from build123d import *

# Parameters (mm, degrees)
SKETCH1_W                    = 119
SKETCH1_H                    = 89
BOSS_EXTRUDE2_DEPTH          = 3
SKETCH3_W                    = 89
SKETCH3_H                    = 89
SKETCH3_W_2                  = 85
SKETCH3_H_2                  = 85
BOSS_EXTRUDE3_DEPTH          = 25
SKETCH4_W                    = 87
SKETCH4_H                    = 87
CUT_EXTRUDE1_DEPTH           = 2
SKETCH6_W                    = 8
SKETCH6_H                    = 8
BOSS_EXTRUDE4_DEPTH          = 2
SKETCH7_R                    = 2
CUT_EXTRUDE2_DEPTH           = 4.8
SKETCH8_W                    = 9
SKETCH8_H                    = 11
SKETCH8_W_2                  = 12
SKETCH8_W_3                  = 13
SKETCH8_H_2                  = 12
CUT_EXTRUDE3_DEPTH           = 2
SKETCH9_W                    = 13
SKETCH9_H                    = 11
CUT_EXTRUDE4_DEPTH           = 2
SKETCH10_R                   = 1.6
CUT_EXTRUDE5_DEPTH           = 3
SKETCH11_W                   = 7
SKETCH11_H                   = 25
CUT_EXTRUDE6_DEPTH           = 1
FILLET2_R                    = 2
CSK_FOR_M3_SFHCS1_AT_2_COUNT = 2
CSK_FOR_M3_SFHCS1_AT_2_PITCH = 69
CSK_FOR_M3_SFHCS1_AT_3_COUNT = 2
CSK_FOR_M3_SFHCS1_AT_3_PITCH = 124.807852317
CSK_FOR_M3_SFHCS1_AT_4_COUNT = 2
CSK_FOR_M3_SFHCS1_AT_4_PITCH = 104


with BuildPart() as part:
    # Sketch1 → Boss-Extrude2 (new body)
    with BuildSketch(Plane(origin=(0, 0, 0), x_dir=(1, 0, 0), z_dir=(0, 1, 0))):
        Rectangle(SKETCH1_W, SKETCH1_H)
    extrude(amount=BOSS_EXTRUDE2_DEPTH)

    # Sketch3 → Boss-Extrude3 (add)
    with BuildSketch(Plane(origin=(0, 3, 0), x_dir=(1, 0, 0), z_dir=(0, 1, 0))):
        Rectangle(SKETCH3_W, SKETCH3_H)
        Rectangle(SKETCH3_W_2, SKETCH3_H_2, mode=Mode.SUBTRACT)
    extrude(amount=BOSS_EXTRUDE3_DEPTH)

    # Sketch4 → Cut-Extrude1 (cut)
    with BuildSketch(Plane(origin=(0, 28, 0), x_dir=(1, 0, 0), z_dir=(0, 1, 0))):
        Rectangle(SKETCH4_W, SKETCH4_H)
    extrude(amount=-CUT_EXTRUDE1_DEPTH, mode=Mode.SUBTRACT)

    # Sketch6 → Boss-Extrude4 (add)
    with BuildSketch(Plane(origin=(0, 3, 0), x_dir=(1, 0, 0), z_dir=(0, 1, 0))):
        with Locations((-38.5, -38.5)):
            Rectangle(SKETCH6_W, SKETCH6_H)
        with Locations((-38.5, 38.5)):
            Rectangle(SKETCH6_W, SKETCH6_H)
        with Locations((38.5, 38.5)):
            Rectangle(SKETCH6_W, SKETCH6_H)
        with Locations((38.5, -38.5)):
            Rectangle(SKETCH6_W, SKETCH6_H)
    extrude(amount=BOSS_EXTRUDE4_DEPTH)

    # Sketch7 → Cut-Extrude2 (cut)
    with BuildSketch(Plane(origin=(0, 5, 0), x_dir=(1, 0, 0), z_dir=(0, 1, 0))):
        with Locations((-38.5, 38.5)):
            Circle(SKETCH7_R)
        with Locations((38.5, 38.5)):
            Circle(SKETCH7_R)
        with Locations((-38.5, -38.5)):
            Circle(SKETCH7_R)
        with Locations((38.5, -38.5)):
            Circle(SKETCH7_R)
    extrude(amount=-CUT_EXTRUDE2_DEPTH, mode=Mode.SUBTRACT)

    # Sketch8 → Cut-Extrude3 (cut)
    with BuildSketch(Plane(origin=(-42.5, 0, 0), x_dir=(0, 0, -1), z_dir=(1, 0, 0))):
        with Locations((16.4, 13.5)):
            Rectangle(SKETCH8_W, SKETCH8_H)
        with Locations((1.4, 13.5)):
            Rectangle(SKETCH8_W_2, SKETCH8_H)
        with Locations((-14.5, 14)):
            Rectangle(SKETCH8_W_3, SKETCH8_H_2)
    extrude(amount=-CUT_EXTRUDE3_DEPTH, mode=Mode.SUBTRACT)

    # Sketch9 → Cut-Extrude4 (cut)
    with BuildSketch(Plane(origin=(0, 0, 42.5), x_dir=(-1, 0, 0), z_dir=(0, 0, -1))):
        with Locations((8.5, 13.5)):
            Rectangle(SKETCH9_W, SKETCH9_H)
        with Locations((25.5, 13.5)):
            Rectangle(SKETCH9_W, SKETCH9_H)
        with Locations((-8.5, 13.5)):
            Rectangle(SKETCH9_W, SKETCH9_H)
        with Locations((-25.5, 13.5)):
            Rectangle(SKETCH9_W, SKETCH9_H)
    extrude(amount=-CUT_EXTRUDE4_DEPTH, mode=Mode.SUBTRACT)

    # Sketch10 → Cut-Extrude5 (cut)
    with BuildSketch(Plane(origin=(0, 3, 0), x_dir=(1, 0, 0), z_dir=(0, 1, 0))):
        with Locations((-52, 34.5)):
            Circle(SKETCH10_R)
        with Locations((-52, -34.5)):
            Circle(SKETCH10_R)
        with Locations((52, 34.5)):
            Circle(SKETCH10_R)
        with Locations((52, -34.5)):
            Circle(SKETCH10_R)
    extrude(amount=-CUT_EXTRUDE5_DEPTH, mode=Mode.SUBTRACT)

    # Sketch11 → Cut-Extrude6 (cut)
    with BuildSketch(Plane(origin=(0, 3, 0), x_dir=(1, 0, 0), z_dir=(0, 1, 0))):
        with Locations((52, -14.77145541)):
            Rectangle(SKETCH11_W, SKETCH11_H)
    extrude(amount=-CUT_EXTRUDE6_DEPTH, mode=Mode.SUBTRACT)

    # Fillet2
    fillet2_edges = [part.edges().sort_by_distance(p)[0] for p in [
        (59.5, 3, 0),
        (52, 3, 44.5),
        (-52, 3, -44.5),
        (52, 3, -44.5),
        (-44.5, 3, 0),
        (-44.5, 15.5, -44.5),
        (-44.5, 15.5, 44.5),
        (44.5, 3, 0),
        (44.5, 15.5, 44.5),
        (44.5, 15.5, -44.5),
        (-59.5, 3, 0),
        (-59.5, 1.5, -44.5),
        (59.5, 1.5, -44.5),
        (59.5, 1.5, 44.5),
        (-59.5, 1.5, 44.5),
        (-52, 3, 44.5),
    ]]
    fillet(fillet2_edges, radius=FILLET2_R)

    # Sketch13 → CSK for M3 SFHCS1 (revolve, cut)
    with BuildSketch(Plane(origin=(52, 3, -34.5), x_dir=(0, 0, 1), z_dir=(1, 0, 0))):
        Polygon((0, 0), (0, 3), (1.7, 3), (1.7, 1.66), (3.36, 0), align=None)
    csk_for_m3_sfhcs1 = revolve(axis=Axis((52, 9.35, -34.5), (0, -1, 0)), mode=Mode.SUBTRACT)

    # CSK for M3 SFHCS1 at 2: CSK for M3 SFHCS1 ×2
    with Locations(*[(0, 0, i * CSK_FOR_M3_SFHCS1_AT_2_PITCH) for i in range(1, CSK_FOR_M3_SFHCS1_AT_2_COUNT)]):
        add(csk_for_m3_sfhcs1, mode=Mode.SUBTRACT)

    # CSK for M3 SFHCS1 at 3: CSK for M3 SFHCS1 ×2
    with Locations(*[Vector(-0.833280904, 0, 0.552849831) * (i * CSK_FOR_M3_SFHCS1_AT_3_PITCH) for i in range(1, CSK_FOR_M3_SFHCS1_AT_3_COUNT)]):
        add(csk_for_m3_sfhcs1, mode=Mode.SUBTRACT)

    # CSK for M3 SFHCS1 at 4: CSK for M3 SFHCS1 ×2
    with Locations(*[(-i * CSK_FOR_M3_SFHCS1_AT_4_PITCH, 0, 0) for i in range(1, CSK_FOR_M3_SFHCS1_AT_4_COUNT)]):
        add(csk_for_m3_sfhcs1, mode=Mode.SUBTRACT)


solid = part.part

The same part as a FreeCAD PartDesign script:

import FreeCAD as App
import Part
import Sketcher

V = App.Vector
Q = App.Units.Quantity


def edges_at(feature, points):
    """Names of the edges that pass closest to the given points."""
    edges = feature.Shape.Edges
    near = lambda p: min(range(len(edges)), key=lambda i: edges[i].distToShape(Part.Vertex(*p))[0])
    return sorted({f"Edge{near(p) + 1}" for p in points})


def add_polygon(sketch, points):
    """Adds a closed chain of lines whose ends are joined by coincident constraints."""
    first, n = sketch.GeometryCount, len(points)
    for a, b in zip(points, points[1:] + points[:1]):
        sketch.addGeometry(Part.LineSegment(App.Vector(*a, 0), App.Vector(*b, 0)), False)
    for i in range(n):
        sketch.addConstraint(Sketcher.Constraint("Coincident", first + i, 2, first + (i + 1) % n, 1))

doc = App.newDocument("Part")
body = doc.addObject("PartDesign::Body", "Body")

# Sketch on XZ plane
sketch1 = body.newObject("Sketcher::SketchObject", "Sketch")
sketch1.AttachmentSupport = (doc.getObject("XZ_Plane"), [""])
sketch1.MapMode = "FlatFace"
add_polygon(sketch1, [(-60, -44), (-60, 44), (60, 44), (60, -44)])  # lines 0-3
sketch1.addConstraint([
    Sketcher.Constraint("Vertical", 0),
    Sketcher.Constraint("Horizontal", 1),
    Sketcher.Constraint("Vertical", 2),
    Sketcher.Constraint("Horizontal", 3),
    Sketcher.Constraint("Symmetric", 0, 2, 2, 2, -1, 1),
    Sketcher.Constraint("DistanceX", 1, 1, 1, 2, 119.0),
    Sketcher.Constraint("DistanceY", 0, 1, 0, 2, 89.0),
])
pad1 = body.newObject("PartDesign::Pad", "Pad")
pad1.Profile = sketch1
pad1.Length = 3
pad1.Reversed = True

# Sketch on XZ plane
sketch2 = body.newObject("Sketcher::SketchObject", "Sketch001")
sketch2.AttachmentSupport = (doc.getObject("XZ_Plane"), [""])
sketch2.MapMode = "FlatFace"
sketch2.AttachmentOffset = App.Placement(V(0, 0, -3), App.Rotation())
add_polygon(sketch2, [(-44, -44), (-44, 44), (44, 44), (44, -44)])  # lines 0-3
add_polygon(sketch2, [(42, 42), (-42, 42), (-42, -42), (42, -42)])  # lines 4-7
sketch2.addConstraint([
    Sketcher.Constraint("Vertical", 0),
    Sketcher.Constraint("Horizontal", 1),
    Sketcher.Constraint("Vertical", 2),
    Sketcher.Constraint("Horizontal", 3),
    Sketcher.Constraint("Horizontal", 4),
    Sketcher.Constraint("Vertical", 5),
    Sketcher.Constraint("Horizontal", 6),
    Sketcher.Constraint("Vertical", 7),
    Sketcher.Constraint("Symmetric", 0, 2, 2, 2, -1, 1),
    Sketcher.Constraint("Symmetric", 4, 2, 6, 2, -1, 1),
    Sketcher.Constraint("Equal", 3, 0),
    Sketcher.Constraint("Equal", 6, 5),
    Sketcher.Constraint("DistanceX", 1, 1, 1, 2, 89.0),
    Sketcher.Constraint("DistanceX", 4, 2, 4, 1, 85.0),
])
pad2 = body.newObject("PartDesign::Pad", "Pad001")
pad2.Profile = sketch2
pad2.Length = 25
pad2.Reversed = True

# Sketch on XZ plane
sketch3 = body.newObject("Sketcher::SketchObject", "Sketch002")
sketch3.AttachmentSupport = (doc.getObject("XZ_Plane"), [""])
sketch3.MapMode = "FlatFace"
sketch3.AttachmentOffset = App.Placement(V(0, 0, -28), App.Rotation())
add_polygon(sketch3, [(-44, -44), (-44, 44), (44, 44), (44, -44)])  # lines 0-3
sketch3.addConstraint([
    Sketcher.Constraint("Vertical", 0),
    Sketcher.Constraint("Horizontal", 1),
    Sketcher.Constraint("Vertical", 2),
    Sketcher.Constraint("Horizontal", 3),
    Sketcher.Constraint("Symmetric", 0, 2, 2, 2, -1, 1),
    Sketcher.Constraint("Equal", 3, 0),
    Sketcher.Constraint("DistanceX", 1, 1, 1, 2, 87.0),
])
pocket1 = body.newObject("PartDesign::Pocket", "Pocket")
pocket1.Profile = sketch3
pocket1.Length = 2
pocket1.Reversed = True

# Sketch on XZ plane
sketch4 = body.newObject("Sketcher::SketchObject", "Sketch003")
sketch4.AttachmentSupport = (doc.getObject("XZ_Plane"), [""])
sketch4.MapMode = "FlatFace"
sketch4.AttachmentOffset = App.Placement(V(0, 0, -3), App.Rotation())
add_polygon(sketch4, [(-42, 34), (-42, 42), (-34, 42), (-34, 34)])  # lines 0-3
add_polygon(sketch4, [(-42, -42), (-42, -34), (-34, -34), (-34, -42)])  # lines 4-7
add_polygon(sketch4, [(34, -42), (34, -34), (42, -34), (42, -42)])  # lines 8-11
add_polygon(sketch4, [(34, 34), (34, 42), (42, 42), (42, 34)])  # lines 12-15
sketch4.addConstraint([
    Sketcher.Constraint("Vertical", 0),
    Sketcher.Constraint("Horizontal", 1),
    Sketcher.Constraint("Vertical", 2),
    Sketcher.Constraint("Horizontal", 3),
    Sketcher.Constraint("Vertical", 4),
    Sketcher.Constraint("Horizontal", 5),
    Sketcher.Constraint("Vertical", 6),
    Sketcher.Constraint("Horizontal", 7),
    Sketcher.Constraint("Vertical", 8),
    Sketcher.Constraint("Horizontal", 9),
    Sketcher.Constraint("Vertical", 10),
    Sketcher.Constraint("Horizontal", 11),
    Sketcher.Constraint("Vertical", 12),
    Sketcher.Constraint("Horizontal", 13),
    Sketcher.Constraint("Vertical", 14),
    Sketcher.Constraint("Horizontal", 15),
    Sketcher.Constraint("Symmetric", 2, 2, 8, 2, -1, 1),
    Sketcher.Constraint("Symmetric", 0, 2, 10, 2, -1, 1),
    Sketcher.Constraint("Symmetric", 6, 2, 12, 2, -1, 1),
    Sketcher.Constraint("Symmetric", 4, 2, 14, 2, -1, 1),
    Sketcher.Constraint("Symmetric", 5, 2, 8, 2, -2),
    Sketcher.Constraint("Symmetric", 7, 2, 10, 2, -2),
    Sketcher.Constraint("Equal", 15, 0),
    Sketcher.Constraint("DistanceX", 1, 1, 1, 2, 8.0),
    Sketcher.Constraint("DistanceY", 4, 2, 3, 2, 69.0),
    Sketcher.Constraint("DistanceX", 5, 2, 8, 2, 69.0),
])
pad3 = body.newObject("PartDesign::Pad", "Pad002")
pad3.Profile = sketch4
pad3.Length = 2
pad3.Reversed = True

# Sketch on XZ plane
sketch5 = body.newObject("Sketcher::SketchObject", "Sketch004")
sketch5.AttachmentSupport = (doc.getObject("XZ_Plane"), [""])
sketch5.MapMode = "FlatFace"
sketch5.AttachmentOffset = App.Placement(V(0, 0, -5), App.Rotation())
sketch5.addGeometry([
    Part.Circle(V(-38.5, -38.5, 0), V(0, 0, 1), 2),
    Part.Circle(V(38.5, -38.5, 0), V(0, 0, 1), 2),
    Part.Circle(V(-38.5, 38.5, 0), V(0, 0, 1), 2),
    Part.Circle(V(38.5, 38.5, 0), V(0, 0, 1), 2),
], False)
sketch5.addConstraint([
    Sketcher.Constraint("Equal", 0, 1),
    Sketcher.Constraint("Equal", 1, 2),
    Sketcher.Constraint("Equal", 2, 3),
    Sketcher.Constraint("Symmetric", 1, 3, 2, 3, -1, 1),
    Sketcher.Constraint("Symmetric", 0, 3, 3, 3, -1, 1),
    Sketcher.Constraint("Symmetric", 0, 3, 1, 3, -2),
    Sketcher.Constraint("Diameter", 0, 4.0),
    Sketcher.Constraint("DistanceX", 0, 3, 1, 3, 77.0),
    Sketcher.Constraint("DistanceY", 0, 3, 2, 3, 77.0),
])
pocket2 = body.newObject("PartDesign::Pocket", "Pocket001")
pocket2.Profile = sketch5
pocket2.Length = 4.8
pocket2.Reversed = True

# Sketch on YZ plane
sketch6 = body.newObject("Sketcher::SketchObject", "Sketch005")
sketch6.AttachmentSupport = (doc.getObject("YZ_Plane"), [""])
sketch6.MapMode = "FlatFace"
sketch6.AttachmentOffset = App.Placement(V(0, 0, -42.5), App.Rotation())
add_polygon(sketch6, [(19, -12), (8, -12), (8, -21), (19, -21)])  # lines 0-3
add_polygon(sketch6, [(19, 5), (8, 5), (8, -7), (19, -7)])  # lines 4-7
add_polygon(sketch6, [(20, 21), (8, 21), (8, 8), (20, 8)])  # lines 8-11
sketch6.addConstraint([
    Sketcher.Constraint("Horizontal", 0),
    Sketcher.Constraint("Vertical", 1),
    Sketcher.Constraint("Horizontal", 2),
    Sketcher.Constraint("Vertical", 3),
    Sketcher.Constraint("Horizontal", 4),
    Sketcher.Constraint("Vertical", 5),
    Sketcher.Constraint("Horizontal", 6),
    Sketcher.Constraint("Vertical", 7),
    Sketcher.Constraint("Horizontal", 8),
    Sketcher.Constraint("Vertical", 9),
    Sketcher.Constraint("Horizontal", 10),
    Sketcher.Constraint("Vertical", 11),
    Sketcher.Constraint("Vertical", 1, 2, 4, 2),
    Sketcher.Constraint("Vertical", 3, 2, 6, 2),
    Sketcher.Constraint("Vertical", 5, 2, 8, 2),
    Sketcher.Constraint("Equal", 10, 5),
    Sketcher.Constraint("DistanceX", 0, 2, 0, 1, 11.0),
    Sketcher.Constraint("DistanceX", 8, 2, 8, 1, 12.0),
    Sketcher.Constraint("DistanceY", 1, 2, 1, 1, 9.0),
    Sketcher.Constraint("DistanceY", 9, 2, 9, 1, 13.0),
    Sketcher.Constraint("DistanceX", -1, 1, 0, 2, 8.0),
    Sketcher.Constraint("DistanceY", -1, 1, 8, 2, 21.0),
    Sketcher.Constraint("DistanceY", 0, 2, -1, 1, 11.9),
    Sketcher.Constraint("DistanceY", -1, 1, 4, 2, 4.6),
])
pocket3 = body.newObject("PartDesign::Pocket", "Pocket002")
pocket3.Profile = sketch6
pocket3.Length = 2

# Sketch on XY plane
sketch7 = body.newObject("Sketcher::SketchObject", "Sketch006")
sketch7.AttachmentSupport = (doc.getObject("XY_Plane"), [""])
sketch7.MapMode = "FlatFace"
sketch7.AttachmentOffset = App.Placement(V(0, 0, 42.5), App.Rotation())
add_polygon(sketch7, [(-2, 19), (-2, 8), (-15, 8), (-15, 19)])  # lines 0-3
add_polygon(sketch7, [(-19, 19), (-19, 8), (-32, 8), (-32, 19)])  # lines 4-7
add_polygon(sketch7, [(15, 19), (15, 8), (2, 8), (2, 19)])  # lines 8-11
add_polygon(sketch7, [(32, 19), (32, 8), (19, 8), (19, 19)])  # lines 12-15
sketch7.addConstraint([
    Sketcher.Constraint("Vertical", 0),
    Sketcher.Constraint("Horizontal", 1),
    Sketcher.Constraint("Vertical", 2),
    Sketcher.Constraint("Horizontal", 3),
    Sketcher.Constraint("Vertical", 4),
    Sketcher.Constraint("Horizontal", 5),
    Sketcher.Constraint("Vertical", 6),
    Sketcher.Constraint("Horizontal", 7),
    Sketcher.Constraint("Vertical", 8),
    Sketcher.Constraint("Horizontal", 9),
    Sketcher.Constraint("Vertical", 10),
    Sketcher.Constraint("Horizontal", 11),
    Sketcher.Constraint("Vertical", 12),
    Sketcher.Constraint("Horizontal", 13),
    Sketcher.Constraint("Vertical", 14),
    Sketcher.Constraint("Horizontal", 15),
    Sketcher.Constraint("Symmetric", 1, 2, 8, 2, -2),
    Sketcher.Constraint("Symmetric", 3, 2, 10, 2, -2),
    Sketcher.Constraint("Symmetric", 5, 2, 12, 2, -2),
    Sketcher.Constraint("Symmetric", 7, 2, 14, 2, -2),
    Sketcher.Constraint("Horizontal", 1, 2, 4, 2),
    Sketcher.Constraint("Horizontal", 3, 2, 6, 2),
    Sketcher.Constraint("Equal", 3, 5),
    Sketcher.Constraint("DistanceX", 1, 2, 1, 1, 13.0),
    Sketcher.Constraint("DistanceY", 0, 2, 0, 1, 11.0),
    Sketcher.Constraint("DistanceX", 0, 2, -1, 1, 2.0),
    Sketcher.Constraint("DistanceY", -1, 1, 0, 2, 8.0),
    Sketcher.Constraint("DistanceX", 4, 2, -1, 1, 19.0),
])
pocket4 = body.newObject("PartDesign::Pocket", "Pocket003")
pocket4.Profile = sketch7
pocket4.Length = 2
pocket4.Reversed = True

# Sketch on XZ plane
sketch8 = body.newObject("Sketcher::SketchObject", "Sketch007")
sketch8.AttachmentSupport = (doc.getObject("XZ_Plane"), [""])
sketch8.MapMode = "FlatFace"
sketch8.AttachmentOffset = App.Placement(V(0, 0, -3), App.Rotation())
sketch8.addGeometry([
    Part.Circle(V(-52, -34.5, 0), V(0, 0, 1), 1.6),
    Part.Circle(V(-52, 34.5, 0), V(0, 0, 1), 1.6),
    Part.Circle(V(52, -34.5, 0), V(0, 0, 1), 1.6),
    Part.Circle(V(52, 34.5, 0), V(0, 0, 1), 1.6),
], False)
sketch8.addConstraint([
    Sketcher.Constraint("Equal", 0, 1),
    Sketcher.Constraint("Equal", 1, 2),
    Sketcher.Constraint("Equal", 2, 3),
    Sketcher.Constraint("Symmetric", 1, 3, 2, 3, -1, 1),
    Sketcher.Constraint("Symmetric", 0, 3, 3, 3, -1, 1),
    Sketcher.Constraint("Symmetric", 0, 3, 2, 3, -2),
    Sketcher.Constraint("Diameter", 0, 3.2),
    Sketcher.Constraint("DistanceX", 0, 3, -1, 1, 52.0),
    Sketcher.Constraint("DistanceY", 0, 3, 1, 3, 69.0),
])
pocket5 = body.newObject("PartDesign::Pocket", "Pocket004")
pocket5.Profile = sketch8
pocket5.Length = 3
pocket5.Reversed = True

# Sketch on XZ plane
sketch9 = body.newObject("Sketcher::SketchObject", "Sketch008")
sketch9.AttachmentSupport = (doc.getObject("XZ_Plane"), [""])
sketch9.MapMode = "FlatFace"
sketch9.AttachmentOffset = App.Placement(V(0, 0, -3), App.Rotation())
add_polygon(sketch9, [(48, 2), (48, 27), (56, 27), (56, 2)])  # lines 0-3
sketch9.addConstraint([
    Sketcher.Constraint("Vertical", 0),
    Sketcher.Constraint("Horizontal", 1),
    Sketcher.Constraint("Vertical", 2),
    Sketcher.Constraint("Horizontal", 3),
    Sketcher.Constraint("DistanceX", 1, 1, 1, 2, 7.0),
    Sketcher.Constraint("DistanceY", 0, 1, 0, 2, 25.0),
    Sketcher.Constraint("DistanceX", -1, 1, 0, 2, 48.5),
    Sketcher.Constraint("DistanceY", -1, 1, 0, 2, 27.271455),
])
pocket6 = body.newObject("PartDesign::Pocket", "Pocket005")
pocket6.Profile = sketch9
pocket6.Length = 1
pocket6.Reversed = True
doc.recompute()

fillet = body.newObject("PartDesign::Fillet", "Fillet")
fillet.Base = (pocket6, edges_at(pocket6, [
    (59.5, 3, 0),
    (52, 3, 44.5),
    (-52, 3, -44.5),
    (52, 3, -44.5),
    (-44.5, 3, 0),
    (-44.5, 15.5, -44.5),
    (-44.5, 15.5, 44.5),
    (44.5, 3, 0),
    (44.5, 15.5, 44.5),
    (44.5, 15.5, -44.5),
    (-59.5, 3, 0),
    (-59.5, 1.5, -44.5),
    (59.5, 1.5, -44.5),
    (59.5, 1.5, 44.5),
    (-59.5, 1.5, 44.5),
    (-52, 3, 44.5),
]))
fillet.Radius = 2

# Sketch on YZ plane
sketch10 = body.newObject("Sketcher::SketchObject", "Sketch009")
sketch10.AttachmentSupport = (doc.getObject("YZ_Plane"), [""])
sketch10.MapMode = "FlatFace"
sketch10.AttachmentOffset = App.Placement(V(0, 0, 52), App.Rotation())
add_polygon(sketch10, [(0, -34.5), (3, -34.5), (3, -31.1), (1.3, -32.8), (0, -32.8)])  # lines 0-4
sketch10.addGeometry(Part.LineSegment(V(3, -34.5, 0), V(0, -34.5, 0)), True)  # axis
sketch10.addConstraint([
    Sketcher.Constraint("Horizontal", 0),
    Sketcher.Constraint("Vertical", 1),
    Sketcher.Constraint("Horizontal", 3),
    Sketcher.Constraint("Vertical", 4),
    Sketcher.Constraint("Horizontal", 5),
    Sketcher.Constraint("Coincident", 5, 1, 0, 2),
    Sketcher.Constraint("PointOnObject", 3, 2, -2),
    Sketcher.Constraint("PointOnObject", 5, 2, -2),
    Sketcher.Constraint("DistanceX", 0, 1, 0, 2, 3.0),
    Sketcher.Constraint("Angle", 2, Q("-135 deg")),
    Sketcher.Constraint("DistanceY", 4, 2, 4, 1, 1.7),
    Sketcher.Constraint("DistanceX", 3, 2, 3, 1, 1.34),
    Sketcher.Constraint("DistanceY", 0, 2, -1, 1, 34.5),
])
groove = body.newObject("PartDesign::Groove", "Groove")
groove.Profile = sketch10
groove.ReferenceAxis = (sketch10, ["Axis0"])
groove.Angle = 360
doc.recompute()

linearpattern = body.newObject("PartDesign::LinearPattern", "LinearPattern")
linearpattern.Originals = [groove]
linearpattern.Direction = (doc.getObject("Z_Axis"), [""])
linearpattern.Mode = "offset"
linearpattern.Offset = 69
linearpattern.Occurrences = 2
body.Tip = linearpattern
doc.recompute()

datumline = body.newObject("PartDesign::Line", "DatumLine")
datumline.Placement = App.Placement(V(0, 0, 0), App.Rotation(V(0, 0, 1), V(-0.833280904, 0, 0.552849831)))
linearpattern2 = body.newObject("PartDesign::LinearPattern", "LinearPattern001")
linearpattern2.Originals = [groove]
linearpattern2.Direction = (datumline, [""])
linearpattern2.Mode = "offset"
linearpattern2.Offset = 124.807852
linearpattern2.Occurrences = 2
body.Tip = linearpattern2
doc.recompute()

linearpattern3 = body.newObject("PartDesign::LinearPattern", "LinearPattern002")
linearpattern3.Originals = [groove]
linearpattern3.Direction = (doc.getObject("X_Axis"), [""])
linearpattern3.Mode = "offset"
linearpattern3.Offset = 104
linearpattern3.Occurrences = 2
linearpattern3.Reversed = True
body.Tip = linearpattern3

doc.recompute()
